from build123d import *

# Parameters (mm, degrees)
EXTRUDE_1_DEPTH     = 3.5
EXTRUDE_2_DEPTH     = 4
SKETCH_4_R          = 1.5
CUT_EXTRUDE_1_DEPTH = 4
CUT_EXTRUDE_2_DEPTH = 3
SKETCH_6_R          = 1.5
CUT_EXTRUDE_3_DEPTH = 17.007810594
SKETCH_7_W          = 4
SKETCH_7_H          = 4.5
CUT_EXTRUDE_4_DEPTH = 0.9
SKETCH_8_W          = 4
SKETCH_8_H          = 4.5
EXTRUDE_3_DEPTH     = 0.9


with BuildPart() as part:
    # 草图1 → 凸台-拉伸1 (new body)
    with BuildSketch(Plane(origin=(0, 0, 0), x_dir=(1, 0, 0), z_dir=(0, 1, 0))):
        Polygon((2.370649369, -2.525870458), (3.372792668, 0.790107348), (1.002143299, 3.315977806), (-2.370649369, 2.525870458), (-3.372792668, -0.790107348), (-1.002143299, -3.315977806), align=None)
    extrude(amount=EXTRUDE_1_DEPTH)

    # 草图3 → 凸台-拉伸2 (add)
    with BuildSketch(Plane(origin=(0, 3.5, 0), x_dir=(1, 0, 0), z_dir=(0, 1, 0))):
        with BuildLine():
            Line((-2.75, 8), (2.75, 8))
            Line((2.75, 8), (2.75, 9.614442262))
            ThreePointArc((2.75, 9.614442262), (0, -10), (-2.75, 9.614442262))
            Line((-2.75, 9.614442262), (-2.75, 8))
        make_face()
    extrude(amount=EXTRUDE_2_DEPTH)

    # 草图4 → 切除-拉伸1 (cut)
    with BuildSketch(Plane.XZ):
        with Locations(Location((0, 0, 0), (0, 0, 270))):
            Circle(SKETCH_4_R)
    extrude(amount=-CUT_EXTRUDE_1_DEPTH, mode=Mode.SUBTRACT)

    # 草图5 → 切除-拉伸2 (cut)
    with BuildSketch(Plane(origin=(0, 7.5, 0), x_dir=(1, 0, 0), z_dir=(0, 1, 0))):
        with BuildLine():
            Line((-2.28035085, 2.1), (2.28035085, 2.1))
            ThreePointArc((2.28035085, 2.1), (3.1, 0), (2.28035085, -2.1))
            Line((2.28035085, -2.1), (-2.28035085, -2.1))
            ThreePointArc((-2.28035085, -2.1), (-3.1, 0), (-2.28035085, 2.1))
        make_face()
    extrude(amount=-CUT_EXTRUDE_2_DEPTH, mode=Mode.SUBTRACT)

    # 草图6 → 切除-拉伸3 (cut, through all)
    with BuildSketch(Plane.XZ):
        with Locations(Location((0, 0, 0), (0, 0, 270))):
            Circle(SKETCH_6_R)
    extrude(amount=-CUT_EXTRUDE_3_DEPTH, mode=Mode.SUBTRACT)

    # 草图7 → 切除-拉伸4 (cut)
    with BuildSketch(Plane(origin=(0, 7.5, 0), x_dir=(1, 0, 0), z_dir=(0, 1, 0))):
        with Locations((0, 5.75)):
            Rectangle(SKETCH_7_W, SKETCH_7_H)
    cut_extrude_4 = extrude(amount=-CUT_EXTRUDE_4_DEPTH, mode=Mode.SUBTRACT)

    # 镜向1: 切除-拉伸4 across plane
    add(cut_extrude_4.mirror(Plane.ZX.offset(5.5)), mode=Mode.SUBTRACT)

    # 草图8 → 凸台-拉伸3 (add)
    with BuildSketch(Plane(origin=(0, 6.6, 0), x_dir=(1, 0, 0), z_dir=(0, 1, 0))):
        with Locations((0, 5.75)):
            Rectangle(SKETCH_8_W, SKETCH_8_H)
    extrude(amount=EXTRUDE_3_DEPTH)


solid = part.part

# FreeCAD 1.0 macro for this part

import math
import FreeCAD as App
import Part
import Sketcher


def add_polygon(sketch, points):
    """Adds a closed chain of lines whose ends are joined by coincident constraints."""
    first, n = sketch.GeometryCount, len(points)
    for a, b in zip(points, points[1:] + points[:1]):
        sketch.addGeometry(Part.LineSegment(App.Vector(*a, 0), App.Vector(*b, 0)), False)
    for i in range(n):
        sketch.addConstraint(Sketcher.Constraint("Coincident", first + i, 2, first + (i + 1) % n, 1))

doc = App.newDocument("Part")
params = doc.addObject("Spreadsheet::Sheet", "Params")
for row, (alias, value) in enumerate([
    ("pad1_length", "3.5 mm"),
    ("sketch2_radius", "10 mm"),
    ("sketch2_width", "5.5 mm"),
    ("pad2_length", "4 mm"),
    ("sketch3_diameter", "3 mm"),
    ("pocket1_length", "4 mm"),
    ("sketch4_radius", "3.1 mm"),
    ("pocket2_length", "3 mm"),
    ("sketch5_diameter", "3 mm"),
    ("sketch6_width", "4 mm"),
    ("sketch6_height", "4.5 mm"),
    ("pocket4_length", "0.9 mm"),
    ("sketch7_width", "4 mm"),
    ("sketch7_height", "4.5 mm"),
    ("pad3_length", "0.9 mm"),
], start=1):
    params.set(f"A{row}", alias)
    params.set(f"B{row}", "=" + value)
    params.setAlias(f"B{row}", alias)

body = doc.addObject("PartDesign::Body", "Body")

# Sketch on XZ plane
sketch1 = doc.addObject("Sketcher::SketchObject", "Sketch")
body.addObject(sketch1)
sketch1.AttachmentSupport = (doc.XZ_Plane, [""])
sketch1.MapMode = "FlatFace"
add_polygon(sketch1, [(2.4, 2.5), (3.4, -0.8), (1, -3.3), (-2.4, -2.5), (-3.4, 0.8), (-1, 3.3)])  # lines 0-5
sketch1.addConstraint([
    Sketcher.Constraint("Symmetric", 0, 2, 3, 2, -1, 1),
    Sketcher.Constraint("Symmetric", 1, 2, 4, 2, -1, 1),
    Sketcher.Constraint("Symmetric", 2, 2, 5, 2, -1, 1),
    Sketcher.Constraint("Equal", 0, 1),
    Sketcher.Constraint("Equal", 1, 2),
    Sketcher.Constraint("Distance", 0, 3.464102),
    Sketcher.Constraint("DistanceX", 2, 2, 5, 2, 4.741299),
    Sketcher.Constraint("DistanceY", 2, 2, -1, 1, 2.52587),
    Sketcher.Constraint("DistanceX", 1, 2, 0, 2, 2.370649),
])
pad1 = doc.addObject("PartDesign::Pad", "Pad")
body.addObject(pad1)
pad1.Profile = sketch1
pad1.setExpression("Length", "Params.pad1_length")
pad1.Reversed = True

# Sketch on XZ plane
sketch2 = doc.addObject("Sketcher::SketchObject", "Sketch001")
body.addObject(sketch2)
sketch2.AttachmentSupport = (doc.XZ_Plane, [""])
sketch2.MapMode = "FlatFace"
sketch2.AttachmentOffset = App.Placement(App.Vector(0, 0, -3.5), App.Rotation())
sketch2.addGeometry([
    Part.LineSegment(App.Vector(2.8, -8, 0), App.Vector(-2.8, -8, 0)),
    Part.LineSegment(App.Vector(-2.8, -8, 0), App.Vector(-2.8, -9.6, 0)),
    Part.ArcOfCircle(Part.Circle(App.Vector(0, 0, 0), App.Vector(0, 0, 1), 10), math.radians(-74), math.radians(254)),
    Part.LineSegment(App.Vector(2.8, -9.6, 0), App.Vector(2.8, -8, 0)),
], False)
sketch2.addConstraint([
    Sketcher.Constraint("Coincident", 0, 2, 1, 1),
    Sketcher.Constraint("Coincident", 1, 2, 2, 2),
    Sketcher.Constraint("Coincident", 2, 1, 3, 1),
    Sketcher.Constraint("Coincident", 3, 2, 0, 1),
    Sketcher.Constraint("Horizontal", 0),
    Sketcher.Constraint("Vertical", 1),
    Sketcher.Constraint("Vertical", 3),
    Sketcher.Constraint("Coincident", 2, 3, -1, 1),
    Sketcher.Constraint("Horizontal", 1, 2, 2, 1),
    Sketcher.Constraint("Radius", 2, 10.0),
    Sketcher.Constraint("DistanceX", 0, 2, 0, 1, 5.5),
    Sketcher.Constraint("DistanceY", 0, 2, -1, 1, 8.0),
])
sketch2.setExpression("Constraints[9]", "Params.sketch2_radius")
sketch2.setExpression("Constraints[10]", "Params.sketch2_width")
pad2 = doc.addObject("PartDesign::Pad", "Pad001")
body.addObject(pad2)
pad2.Profile = sketch2
pad2.setExpression("Length", "Params.pad2_length")
pad2.Reversed = True

# Sketch on XZ plane
sketch3 = doc.addObject("Sketcher::SketchObject", "Sketch002")
body.addObject(sketch3)
sketch3.AttachmentSupport = (doc.XZ_Plane, [""])
sketch3.MapMode = "FlatFace"
sketch3.addGeometry(Part.Circle(App.Vector(0, 0, 0), App.Vector(0, 0, 1), 1.5), False)
sketch3.addConstraint([
    Sketcher.Constraint("Coincident", 0, 3, -1, 1),
    Sketcher.Constraint("Diameter", 0, 3.0),
])
sketch3.setExpression("Constraints[1]", "Params.sketch3_diameter")
pocket1 = doc.addObject("PartDesign::Pocket", "Pocket")
body.addObject(pocket1)
pocket1.Profile = sketch3
pocket1.setExpression("Length", "Params.pocket1_length")

# Sketch on XZ plane
sketch4 = doc.addObject("Sketcher::SketchObject", "Sketch003")
body.addObject(sketch4)
sketch4.AttachmentSupport = (doc.XZ_Plane, [""])
sketch4.MapMode = "FlatFace"
sketch4.AttachmentOffset = App.Placement(App.Vector(0, 0, -7.5), App.Rotation())
sketch4.addGeometry([
    Part.LineSegment(App.Vector(2.3, -2.1, 0), App.Vector(-2.3, -2.1, 0)),
    Part.ArcOfCircle(Part.Circle(App.Vector(0, 0, 0), App.Vector(0, 0, 1), 3.1), math.radians(137), math.radians(223)),
    Part.LineSegment(App.Vector(-2.3, 2.1, 0), App.Vector(2.3, 2.1, 0)),
    Part.ArcOfCircle(Part.Circle(App.Vector(0, 0, 0), App.Vector(0, 0, 1), 3.1), math.radians(-43), math.radians(43)),
], False)
sketch4.addConstraint([
    Sketcher.Constraint("Coincident", 0, 2, 1, 2),
    Sketcher.Constraint("Coincident", 1, 1, 2, 1),
    Sketcher.Constraint("Coincident", 2, 2, 3, 2),
    Sketcher.Constraint("Coincident", 3, 1, 0, 1),
    Sketcher.Constraint("Horizontal", 0),
    Sketcher.Constraint("Horizontal", 2),
    Sketcher.Constraint("Coincident", 1, 3, -1, 1),
    Sketcher.Constraint("Coincident", 3, 3, -1, 1),
    Sketcher.Constraint("Equal", 1, 3),
    Sketcher.Constraint("Vertical", 0, 2, 1, 1),
    Sketcher.Constraint("Radius", 1, 3.1),
    Sketcher.Constraint("DistanceY", 0, 2, -1, 1, 2.1),
])
sketch4.setExpression("Constraints[10]", "Params.sketch4_radius")
pocket2 = doc.addObject("PartDesign::Pocket", "Pocket001")
body.addObject(pocket2)
pocket2.Profile = sketch4
pocket2.setExpression("Length", "Params.pocket2_length")
pocket2.Reversed = True

# Sketch on XZ plane
sketch5 = doc.addObject("Sketcher::SketchObject", "Sketch004")
body.addObject(sketch5)
sketch5.AttachmentSupport = (doc.XZ_Plane, [""])
sketch5.MapMode = "FlatFace"
sketch5.addGeometry(Part.Circle(App.Vector(0, 0, 0), App.Vector(0, 0, 1), 1.5), False)
sketch5.addConstraint([
    Sketcher.Constraint("Coincident", 0, 3, -1, 1),
    Sketcher.Constraint("Diameter", 0, 3.0),
])
sketch5.setExpression("Constraints[1]", "Params.sketch5_diameter")
pocket3 = doc.addObject("PartDesign::Pocket", "Pocket002")
body.addObject(pocket3)
pocket3.Profile = sketch5
pocket3.Type = "ThroughAll"

# Sketch on XZ plane
sketch6 = doc.addObject("Sketcher::SketchObject", "Sketch005")
body.addObject(sketch6)
sketch6.AttachmentSupport = (doc.XZ_Plane, [""])
sketch6.MapMode = "FlatFace"
sketch6.AttachmentOffset = App.Placement(App.Vector(0, 0, -7.5), App.Rotation())
add_polygon(sketch6, [(-2, -8), (-2, -3.5), (2, -3.5), (2, -8)])  # lines 0-3
sketch6.addConstraint([
    Sketcher.Constraint("Vertical", 0),
    Sketcher.Constraint("Horizontal", 1),
    Sketcher.Constraint("Vertical", 2),
    Sketcher.Constraint("Horizontal", 3),
    Sketcher.Constraint("DistanceX", 1, 1, 1, 2, 4.0),
    Sketcher.Constraint("DistanceY", 0, 1, 0, 2, 4.5),
    Sketcher.Constraint("DistanceX", 0, 2, -1, 1, 2.0),
    Sketcher.Constraint("DistanceY", 2, 2, -1, 1, 8.0),
])
sketch6.setExpression("Constraints[8]", "Params.sketch6_width")
sketch6.setExpression("Constraints[9]", "Params.sketch6_height")
pocket4 = doc.addObject("PartDesign::Pocket", "Pocket003")
body.addObject(pocket4)
pocket4.Profile = sketch6
pocket4.setExpression("Length", "Params.pocket4_length")
pocket4.Reversed = True
doc.recompute()

datumplane = doc.addObject("PartDesign::Plane", "DatumPlane")
body.addObject(datumplane)
datumplane.AttachmentSupport = (doc.XZ_Plane, [""])
datumplane.MapMode = "FlatFace"
datumplane.AttachmentOffset = App.Placement(App.Vector(0, 0, -5.5), App.Rotation())
mirrored = doc.addObject("PartDesign::Mirrored", "Mirrored")
body.addObject(mirrored)
mirrored.Originals = [pocket4]
mirrored.MirrorPlane = (datumplane, [""])
body.Tip = mirrored

# Sketch on XZ plane
sketch7 = doc.addObject("Sketcher::SketchObject", "Sketch006")
body.addObject(sketch7)
sketch7.AttachmentSupport = (doc.XZ_Plane, [""])
sketch7.MapMode = "FlatFace"
sketch7.AttachmentOffset = App.Placement(App.Vector(0, 0, -6.6), App.Rotation())
add_polygon(sketch7, [(-2, -8), (-2, -3.5), (2, -3.5), (2, -8)])  # lines 0-3
sketch7.addConstraint([
    Sketcher.Constraint("Vertical", 0),
    Sketcher.Constraint("Horizontal", 1),
    Sketcher.Constraint("Vertical", 2),
    Sketcher.Constraint("Horizontal", 3),
    Sketcher.Constraint("DistanceX", 1, 1, 1, 2, 4.0),
    Sketcher.Constraint("DistanceY", 0, 1, 0, 2, 4.5),
    Sketcher.Constraint("DistanceX", 0, 2, -1, 1, 2.0),
    Sketcher.Constraint("DistanceY", 2, 2, -1, 1, 8.0),
])
sketch7.setExpression("Constraints[8]", "Params.sketch7_width")
sketch7.setExpression("Constraints[9]", "Params.sketch7_height")
pad3 = doc.addObject("PartDesign::Pad", "Pad002")
body.addObject(pad3)
pad3.Profile = sketch7
pad3.setExpression("Length", "Params.pad3_length")
pad3.Reversed = True

doc.recompute()
